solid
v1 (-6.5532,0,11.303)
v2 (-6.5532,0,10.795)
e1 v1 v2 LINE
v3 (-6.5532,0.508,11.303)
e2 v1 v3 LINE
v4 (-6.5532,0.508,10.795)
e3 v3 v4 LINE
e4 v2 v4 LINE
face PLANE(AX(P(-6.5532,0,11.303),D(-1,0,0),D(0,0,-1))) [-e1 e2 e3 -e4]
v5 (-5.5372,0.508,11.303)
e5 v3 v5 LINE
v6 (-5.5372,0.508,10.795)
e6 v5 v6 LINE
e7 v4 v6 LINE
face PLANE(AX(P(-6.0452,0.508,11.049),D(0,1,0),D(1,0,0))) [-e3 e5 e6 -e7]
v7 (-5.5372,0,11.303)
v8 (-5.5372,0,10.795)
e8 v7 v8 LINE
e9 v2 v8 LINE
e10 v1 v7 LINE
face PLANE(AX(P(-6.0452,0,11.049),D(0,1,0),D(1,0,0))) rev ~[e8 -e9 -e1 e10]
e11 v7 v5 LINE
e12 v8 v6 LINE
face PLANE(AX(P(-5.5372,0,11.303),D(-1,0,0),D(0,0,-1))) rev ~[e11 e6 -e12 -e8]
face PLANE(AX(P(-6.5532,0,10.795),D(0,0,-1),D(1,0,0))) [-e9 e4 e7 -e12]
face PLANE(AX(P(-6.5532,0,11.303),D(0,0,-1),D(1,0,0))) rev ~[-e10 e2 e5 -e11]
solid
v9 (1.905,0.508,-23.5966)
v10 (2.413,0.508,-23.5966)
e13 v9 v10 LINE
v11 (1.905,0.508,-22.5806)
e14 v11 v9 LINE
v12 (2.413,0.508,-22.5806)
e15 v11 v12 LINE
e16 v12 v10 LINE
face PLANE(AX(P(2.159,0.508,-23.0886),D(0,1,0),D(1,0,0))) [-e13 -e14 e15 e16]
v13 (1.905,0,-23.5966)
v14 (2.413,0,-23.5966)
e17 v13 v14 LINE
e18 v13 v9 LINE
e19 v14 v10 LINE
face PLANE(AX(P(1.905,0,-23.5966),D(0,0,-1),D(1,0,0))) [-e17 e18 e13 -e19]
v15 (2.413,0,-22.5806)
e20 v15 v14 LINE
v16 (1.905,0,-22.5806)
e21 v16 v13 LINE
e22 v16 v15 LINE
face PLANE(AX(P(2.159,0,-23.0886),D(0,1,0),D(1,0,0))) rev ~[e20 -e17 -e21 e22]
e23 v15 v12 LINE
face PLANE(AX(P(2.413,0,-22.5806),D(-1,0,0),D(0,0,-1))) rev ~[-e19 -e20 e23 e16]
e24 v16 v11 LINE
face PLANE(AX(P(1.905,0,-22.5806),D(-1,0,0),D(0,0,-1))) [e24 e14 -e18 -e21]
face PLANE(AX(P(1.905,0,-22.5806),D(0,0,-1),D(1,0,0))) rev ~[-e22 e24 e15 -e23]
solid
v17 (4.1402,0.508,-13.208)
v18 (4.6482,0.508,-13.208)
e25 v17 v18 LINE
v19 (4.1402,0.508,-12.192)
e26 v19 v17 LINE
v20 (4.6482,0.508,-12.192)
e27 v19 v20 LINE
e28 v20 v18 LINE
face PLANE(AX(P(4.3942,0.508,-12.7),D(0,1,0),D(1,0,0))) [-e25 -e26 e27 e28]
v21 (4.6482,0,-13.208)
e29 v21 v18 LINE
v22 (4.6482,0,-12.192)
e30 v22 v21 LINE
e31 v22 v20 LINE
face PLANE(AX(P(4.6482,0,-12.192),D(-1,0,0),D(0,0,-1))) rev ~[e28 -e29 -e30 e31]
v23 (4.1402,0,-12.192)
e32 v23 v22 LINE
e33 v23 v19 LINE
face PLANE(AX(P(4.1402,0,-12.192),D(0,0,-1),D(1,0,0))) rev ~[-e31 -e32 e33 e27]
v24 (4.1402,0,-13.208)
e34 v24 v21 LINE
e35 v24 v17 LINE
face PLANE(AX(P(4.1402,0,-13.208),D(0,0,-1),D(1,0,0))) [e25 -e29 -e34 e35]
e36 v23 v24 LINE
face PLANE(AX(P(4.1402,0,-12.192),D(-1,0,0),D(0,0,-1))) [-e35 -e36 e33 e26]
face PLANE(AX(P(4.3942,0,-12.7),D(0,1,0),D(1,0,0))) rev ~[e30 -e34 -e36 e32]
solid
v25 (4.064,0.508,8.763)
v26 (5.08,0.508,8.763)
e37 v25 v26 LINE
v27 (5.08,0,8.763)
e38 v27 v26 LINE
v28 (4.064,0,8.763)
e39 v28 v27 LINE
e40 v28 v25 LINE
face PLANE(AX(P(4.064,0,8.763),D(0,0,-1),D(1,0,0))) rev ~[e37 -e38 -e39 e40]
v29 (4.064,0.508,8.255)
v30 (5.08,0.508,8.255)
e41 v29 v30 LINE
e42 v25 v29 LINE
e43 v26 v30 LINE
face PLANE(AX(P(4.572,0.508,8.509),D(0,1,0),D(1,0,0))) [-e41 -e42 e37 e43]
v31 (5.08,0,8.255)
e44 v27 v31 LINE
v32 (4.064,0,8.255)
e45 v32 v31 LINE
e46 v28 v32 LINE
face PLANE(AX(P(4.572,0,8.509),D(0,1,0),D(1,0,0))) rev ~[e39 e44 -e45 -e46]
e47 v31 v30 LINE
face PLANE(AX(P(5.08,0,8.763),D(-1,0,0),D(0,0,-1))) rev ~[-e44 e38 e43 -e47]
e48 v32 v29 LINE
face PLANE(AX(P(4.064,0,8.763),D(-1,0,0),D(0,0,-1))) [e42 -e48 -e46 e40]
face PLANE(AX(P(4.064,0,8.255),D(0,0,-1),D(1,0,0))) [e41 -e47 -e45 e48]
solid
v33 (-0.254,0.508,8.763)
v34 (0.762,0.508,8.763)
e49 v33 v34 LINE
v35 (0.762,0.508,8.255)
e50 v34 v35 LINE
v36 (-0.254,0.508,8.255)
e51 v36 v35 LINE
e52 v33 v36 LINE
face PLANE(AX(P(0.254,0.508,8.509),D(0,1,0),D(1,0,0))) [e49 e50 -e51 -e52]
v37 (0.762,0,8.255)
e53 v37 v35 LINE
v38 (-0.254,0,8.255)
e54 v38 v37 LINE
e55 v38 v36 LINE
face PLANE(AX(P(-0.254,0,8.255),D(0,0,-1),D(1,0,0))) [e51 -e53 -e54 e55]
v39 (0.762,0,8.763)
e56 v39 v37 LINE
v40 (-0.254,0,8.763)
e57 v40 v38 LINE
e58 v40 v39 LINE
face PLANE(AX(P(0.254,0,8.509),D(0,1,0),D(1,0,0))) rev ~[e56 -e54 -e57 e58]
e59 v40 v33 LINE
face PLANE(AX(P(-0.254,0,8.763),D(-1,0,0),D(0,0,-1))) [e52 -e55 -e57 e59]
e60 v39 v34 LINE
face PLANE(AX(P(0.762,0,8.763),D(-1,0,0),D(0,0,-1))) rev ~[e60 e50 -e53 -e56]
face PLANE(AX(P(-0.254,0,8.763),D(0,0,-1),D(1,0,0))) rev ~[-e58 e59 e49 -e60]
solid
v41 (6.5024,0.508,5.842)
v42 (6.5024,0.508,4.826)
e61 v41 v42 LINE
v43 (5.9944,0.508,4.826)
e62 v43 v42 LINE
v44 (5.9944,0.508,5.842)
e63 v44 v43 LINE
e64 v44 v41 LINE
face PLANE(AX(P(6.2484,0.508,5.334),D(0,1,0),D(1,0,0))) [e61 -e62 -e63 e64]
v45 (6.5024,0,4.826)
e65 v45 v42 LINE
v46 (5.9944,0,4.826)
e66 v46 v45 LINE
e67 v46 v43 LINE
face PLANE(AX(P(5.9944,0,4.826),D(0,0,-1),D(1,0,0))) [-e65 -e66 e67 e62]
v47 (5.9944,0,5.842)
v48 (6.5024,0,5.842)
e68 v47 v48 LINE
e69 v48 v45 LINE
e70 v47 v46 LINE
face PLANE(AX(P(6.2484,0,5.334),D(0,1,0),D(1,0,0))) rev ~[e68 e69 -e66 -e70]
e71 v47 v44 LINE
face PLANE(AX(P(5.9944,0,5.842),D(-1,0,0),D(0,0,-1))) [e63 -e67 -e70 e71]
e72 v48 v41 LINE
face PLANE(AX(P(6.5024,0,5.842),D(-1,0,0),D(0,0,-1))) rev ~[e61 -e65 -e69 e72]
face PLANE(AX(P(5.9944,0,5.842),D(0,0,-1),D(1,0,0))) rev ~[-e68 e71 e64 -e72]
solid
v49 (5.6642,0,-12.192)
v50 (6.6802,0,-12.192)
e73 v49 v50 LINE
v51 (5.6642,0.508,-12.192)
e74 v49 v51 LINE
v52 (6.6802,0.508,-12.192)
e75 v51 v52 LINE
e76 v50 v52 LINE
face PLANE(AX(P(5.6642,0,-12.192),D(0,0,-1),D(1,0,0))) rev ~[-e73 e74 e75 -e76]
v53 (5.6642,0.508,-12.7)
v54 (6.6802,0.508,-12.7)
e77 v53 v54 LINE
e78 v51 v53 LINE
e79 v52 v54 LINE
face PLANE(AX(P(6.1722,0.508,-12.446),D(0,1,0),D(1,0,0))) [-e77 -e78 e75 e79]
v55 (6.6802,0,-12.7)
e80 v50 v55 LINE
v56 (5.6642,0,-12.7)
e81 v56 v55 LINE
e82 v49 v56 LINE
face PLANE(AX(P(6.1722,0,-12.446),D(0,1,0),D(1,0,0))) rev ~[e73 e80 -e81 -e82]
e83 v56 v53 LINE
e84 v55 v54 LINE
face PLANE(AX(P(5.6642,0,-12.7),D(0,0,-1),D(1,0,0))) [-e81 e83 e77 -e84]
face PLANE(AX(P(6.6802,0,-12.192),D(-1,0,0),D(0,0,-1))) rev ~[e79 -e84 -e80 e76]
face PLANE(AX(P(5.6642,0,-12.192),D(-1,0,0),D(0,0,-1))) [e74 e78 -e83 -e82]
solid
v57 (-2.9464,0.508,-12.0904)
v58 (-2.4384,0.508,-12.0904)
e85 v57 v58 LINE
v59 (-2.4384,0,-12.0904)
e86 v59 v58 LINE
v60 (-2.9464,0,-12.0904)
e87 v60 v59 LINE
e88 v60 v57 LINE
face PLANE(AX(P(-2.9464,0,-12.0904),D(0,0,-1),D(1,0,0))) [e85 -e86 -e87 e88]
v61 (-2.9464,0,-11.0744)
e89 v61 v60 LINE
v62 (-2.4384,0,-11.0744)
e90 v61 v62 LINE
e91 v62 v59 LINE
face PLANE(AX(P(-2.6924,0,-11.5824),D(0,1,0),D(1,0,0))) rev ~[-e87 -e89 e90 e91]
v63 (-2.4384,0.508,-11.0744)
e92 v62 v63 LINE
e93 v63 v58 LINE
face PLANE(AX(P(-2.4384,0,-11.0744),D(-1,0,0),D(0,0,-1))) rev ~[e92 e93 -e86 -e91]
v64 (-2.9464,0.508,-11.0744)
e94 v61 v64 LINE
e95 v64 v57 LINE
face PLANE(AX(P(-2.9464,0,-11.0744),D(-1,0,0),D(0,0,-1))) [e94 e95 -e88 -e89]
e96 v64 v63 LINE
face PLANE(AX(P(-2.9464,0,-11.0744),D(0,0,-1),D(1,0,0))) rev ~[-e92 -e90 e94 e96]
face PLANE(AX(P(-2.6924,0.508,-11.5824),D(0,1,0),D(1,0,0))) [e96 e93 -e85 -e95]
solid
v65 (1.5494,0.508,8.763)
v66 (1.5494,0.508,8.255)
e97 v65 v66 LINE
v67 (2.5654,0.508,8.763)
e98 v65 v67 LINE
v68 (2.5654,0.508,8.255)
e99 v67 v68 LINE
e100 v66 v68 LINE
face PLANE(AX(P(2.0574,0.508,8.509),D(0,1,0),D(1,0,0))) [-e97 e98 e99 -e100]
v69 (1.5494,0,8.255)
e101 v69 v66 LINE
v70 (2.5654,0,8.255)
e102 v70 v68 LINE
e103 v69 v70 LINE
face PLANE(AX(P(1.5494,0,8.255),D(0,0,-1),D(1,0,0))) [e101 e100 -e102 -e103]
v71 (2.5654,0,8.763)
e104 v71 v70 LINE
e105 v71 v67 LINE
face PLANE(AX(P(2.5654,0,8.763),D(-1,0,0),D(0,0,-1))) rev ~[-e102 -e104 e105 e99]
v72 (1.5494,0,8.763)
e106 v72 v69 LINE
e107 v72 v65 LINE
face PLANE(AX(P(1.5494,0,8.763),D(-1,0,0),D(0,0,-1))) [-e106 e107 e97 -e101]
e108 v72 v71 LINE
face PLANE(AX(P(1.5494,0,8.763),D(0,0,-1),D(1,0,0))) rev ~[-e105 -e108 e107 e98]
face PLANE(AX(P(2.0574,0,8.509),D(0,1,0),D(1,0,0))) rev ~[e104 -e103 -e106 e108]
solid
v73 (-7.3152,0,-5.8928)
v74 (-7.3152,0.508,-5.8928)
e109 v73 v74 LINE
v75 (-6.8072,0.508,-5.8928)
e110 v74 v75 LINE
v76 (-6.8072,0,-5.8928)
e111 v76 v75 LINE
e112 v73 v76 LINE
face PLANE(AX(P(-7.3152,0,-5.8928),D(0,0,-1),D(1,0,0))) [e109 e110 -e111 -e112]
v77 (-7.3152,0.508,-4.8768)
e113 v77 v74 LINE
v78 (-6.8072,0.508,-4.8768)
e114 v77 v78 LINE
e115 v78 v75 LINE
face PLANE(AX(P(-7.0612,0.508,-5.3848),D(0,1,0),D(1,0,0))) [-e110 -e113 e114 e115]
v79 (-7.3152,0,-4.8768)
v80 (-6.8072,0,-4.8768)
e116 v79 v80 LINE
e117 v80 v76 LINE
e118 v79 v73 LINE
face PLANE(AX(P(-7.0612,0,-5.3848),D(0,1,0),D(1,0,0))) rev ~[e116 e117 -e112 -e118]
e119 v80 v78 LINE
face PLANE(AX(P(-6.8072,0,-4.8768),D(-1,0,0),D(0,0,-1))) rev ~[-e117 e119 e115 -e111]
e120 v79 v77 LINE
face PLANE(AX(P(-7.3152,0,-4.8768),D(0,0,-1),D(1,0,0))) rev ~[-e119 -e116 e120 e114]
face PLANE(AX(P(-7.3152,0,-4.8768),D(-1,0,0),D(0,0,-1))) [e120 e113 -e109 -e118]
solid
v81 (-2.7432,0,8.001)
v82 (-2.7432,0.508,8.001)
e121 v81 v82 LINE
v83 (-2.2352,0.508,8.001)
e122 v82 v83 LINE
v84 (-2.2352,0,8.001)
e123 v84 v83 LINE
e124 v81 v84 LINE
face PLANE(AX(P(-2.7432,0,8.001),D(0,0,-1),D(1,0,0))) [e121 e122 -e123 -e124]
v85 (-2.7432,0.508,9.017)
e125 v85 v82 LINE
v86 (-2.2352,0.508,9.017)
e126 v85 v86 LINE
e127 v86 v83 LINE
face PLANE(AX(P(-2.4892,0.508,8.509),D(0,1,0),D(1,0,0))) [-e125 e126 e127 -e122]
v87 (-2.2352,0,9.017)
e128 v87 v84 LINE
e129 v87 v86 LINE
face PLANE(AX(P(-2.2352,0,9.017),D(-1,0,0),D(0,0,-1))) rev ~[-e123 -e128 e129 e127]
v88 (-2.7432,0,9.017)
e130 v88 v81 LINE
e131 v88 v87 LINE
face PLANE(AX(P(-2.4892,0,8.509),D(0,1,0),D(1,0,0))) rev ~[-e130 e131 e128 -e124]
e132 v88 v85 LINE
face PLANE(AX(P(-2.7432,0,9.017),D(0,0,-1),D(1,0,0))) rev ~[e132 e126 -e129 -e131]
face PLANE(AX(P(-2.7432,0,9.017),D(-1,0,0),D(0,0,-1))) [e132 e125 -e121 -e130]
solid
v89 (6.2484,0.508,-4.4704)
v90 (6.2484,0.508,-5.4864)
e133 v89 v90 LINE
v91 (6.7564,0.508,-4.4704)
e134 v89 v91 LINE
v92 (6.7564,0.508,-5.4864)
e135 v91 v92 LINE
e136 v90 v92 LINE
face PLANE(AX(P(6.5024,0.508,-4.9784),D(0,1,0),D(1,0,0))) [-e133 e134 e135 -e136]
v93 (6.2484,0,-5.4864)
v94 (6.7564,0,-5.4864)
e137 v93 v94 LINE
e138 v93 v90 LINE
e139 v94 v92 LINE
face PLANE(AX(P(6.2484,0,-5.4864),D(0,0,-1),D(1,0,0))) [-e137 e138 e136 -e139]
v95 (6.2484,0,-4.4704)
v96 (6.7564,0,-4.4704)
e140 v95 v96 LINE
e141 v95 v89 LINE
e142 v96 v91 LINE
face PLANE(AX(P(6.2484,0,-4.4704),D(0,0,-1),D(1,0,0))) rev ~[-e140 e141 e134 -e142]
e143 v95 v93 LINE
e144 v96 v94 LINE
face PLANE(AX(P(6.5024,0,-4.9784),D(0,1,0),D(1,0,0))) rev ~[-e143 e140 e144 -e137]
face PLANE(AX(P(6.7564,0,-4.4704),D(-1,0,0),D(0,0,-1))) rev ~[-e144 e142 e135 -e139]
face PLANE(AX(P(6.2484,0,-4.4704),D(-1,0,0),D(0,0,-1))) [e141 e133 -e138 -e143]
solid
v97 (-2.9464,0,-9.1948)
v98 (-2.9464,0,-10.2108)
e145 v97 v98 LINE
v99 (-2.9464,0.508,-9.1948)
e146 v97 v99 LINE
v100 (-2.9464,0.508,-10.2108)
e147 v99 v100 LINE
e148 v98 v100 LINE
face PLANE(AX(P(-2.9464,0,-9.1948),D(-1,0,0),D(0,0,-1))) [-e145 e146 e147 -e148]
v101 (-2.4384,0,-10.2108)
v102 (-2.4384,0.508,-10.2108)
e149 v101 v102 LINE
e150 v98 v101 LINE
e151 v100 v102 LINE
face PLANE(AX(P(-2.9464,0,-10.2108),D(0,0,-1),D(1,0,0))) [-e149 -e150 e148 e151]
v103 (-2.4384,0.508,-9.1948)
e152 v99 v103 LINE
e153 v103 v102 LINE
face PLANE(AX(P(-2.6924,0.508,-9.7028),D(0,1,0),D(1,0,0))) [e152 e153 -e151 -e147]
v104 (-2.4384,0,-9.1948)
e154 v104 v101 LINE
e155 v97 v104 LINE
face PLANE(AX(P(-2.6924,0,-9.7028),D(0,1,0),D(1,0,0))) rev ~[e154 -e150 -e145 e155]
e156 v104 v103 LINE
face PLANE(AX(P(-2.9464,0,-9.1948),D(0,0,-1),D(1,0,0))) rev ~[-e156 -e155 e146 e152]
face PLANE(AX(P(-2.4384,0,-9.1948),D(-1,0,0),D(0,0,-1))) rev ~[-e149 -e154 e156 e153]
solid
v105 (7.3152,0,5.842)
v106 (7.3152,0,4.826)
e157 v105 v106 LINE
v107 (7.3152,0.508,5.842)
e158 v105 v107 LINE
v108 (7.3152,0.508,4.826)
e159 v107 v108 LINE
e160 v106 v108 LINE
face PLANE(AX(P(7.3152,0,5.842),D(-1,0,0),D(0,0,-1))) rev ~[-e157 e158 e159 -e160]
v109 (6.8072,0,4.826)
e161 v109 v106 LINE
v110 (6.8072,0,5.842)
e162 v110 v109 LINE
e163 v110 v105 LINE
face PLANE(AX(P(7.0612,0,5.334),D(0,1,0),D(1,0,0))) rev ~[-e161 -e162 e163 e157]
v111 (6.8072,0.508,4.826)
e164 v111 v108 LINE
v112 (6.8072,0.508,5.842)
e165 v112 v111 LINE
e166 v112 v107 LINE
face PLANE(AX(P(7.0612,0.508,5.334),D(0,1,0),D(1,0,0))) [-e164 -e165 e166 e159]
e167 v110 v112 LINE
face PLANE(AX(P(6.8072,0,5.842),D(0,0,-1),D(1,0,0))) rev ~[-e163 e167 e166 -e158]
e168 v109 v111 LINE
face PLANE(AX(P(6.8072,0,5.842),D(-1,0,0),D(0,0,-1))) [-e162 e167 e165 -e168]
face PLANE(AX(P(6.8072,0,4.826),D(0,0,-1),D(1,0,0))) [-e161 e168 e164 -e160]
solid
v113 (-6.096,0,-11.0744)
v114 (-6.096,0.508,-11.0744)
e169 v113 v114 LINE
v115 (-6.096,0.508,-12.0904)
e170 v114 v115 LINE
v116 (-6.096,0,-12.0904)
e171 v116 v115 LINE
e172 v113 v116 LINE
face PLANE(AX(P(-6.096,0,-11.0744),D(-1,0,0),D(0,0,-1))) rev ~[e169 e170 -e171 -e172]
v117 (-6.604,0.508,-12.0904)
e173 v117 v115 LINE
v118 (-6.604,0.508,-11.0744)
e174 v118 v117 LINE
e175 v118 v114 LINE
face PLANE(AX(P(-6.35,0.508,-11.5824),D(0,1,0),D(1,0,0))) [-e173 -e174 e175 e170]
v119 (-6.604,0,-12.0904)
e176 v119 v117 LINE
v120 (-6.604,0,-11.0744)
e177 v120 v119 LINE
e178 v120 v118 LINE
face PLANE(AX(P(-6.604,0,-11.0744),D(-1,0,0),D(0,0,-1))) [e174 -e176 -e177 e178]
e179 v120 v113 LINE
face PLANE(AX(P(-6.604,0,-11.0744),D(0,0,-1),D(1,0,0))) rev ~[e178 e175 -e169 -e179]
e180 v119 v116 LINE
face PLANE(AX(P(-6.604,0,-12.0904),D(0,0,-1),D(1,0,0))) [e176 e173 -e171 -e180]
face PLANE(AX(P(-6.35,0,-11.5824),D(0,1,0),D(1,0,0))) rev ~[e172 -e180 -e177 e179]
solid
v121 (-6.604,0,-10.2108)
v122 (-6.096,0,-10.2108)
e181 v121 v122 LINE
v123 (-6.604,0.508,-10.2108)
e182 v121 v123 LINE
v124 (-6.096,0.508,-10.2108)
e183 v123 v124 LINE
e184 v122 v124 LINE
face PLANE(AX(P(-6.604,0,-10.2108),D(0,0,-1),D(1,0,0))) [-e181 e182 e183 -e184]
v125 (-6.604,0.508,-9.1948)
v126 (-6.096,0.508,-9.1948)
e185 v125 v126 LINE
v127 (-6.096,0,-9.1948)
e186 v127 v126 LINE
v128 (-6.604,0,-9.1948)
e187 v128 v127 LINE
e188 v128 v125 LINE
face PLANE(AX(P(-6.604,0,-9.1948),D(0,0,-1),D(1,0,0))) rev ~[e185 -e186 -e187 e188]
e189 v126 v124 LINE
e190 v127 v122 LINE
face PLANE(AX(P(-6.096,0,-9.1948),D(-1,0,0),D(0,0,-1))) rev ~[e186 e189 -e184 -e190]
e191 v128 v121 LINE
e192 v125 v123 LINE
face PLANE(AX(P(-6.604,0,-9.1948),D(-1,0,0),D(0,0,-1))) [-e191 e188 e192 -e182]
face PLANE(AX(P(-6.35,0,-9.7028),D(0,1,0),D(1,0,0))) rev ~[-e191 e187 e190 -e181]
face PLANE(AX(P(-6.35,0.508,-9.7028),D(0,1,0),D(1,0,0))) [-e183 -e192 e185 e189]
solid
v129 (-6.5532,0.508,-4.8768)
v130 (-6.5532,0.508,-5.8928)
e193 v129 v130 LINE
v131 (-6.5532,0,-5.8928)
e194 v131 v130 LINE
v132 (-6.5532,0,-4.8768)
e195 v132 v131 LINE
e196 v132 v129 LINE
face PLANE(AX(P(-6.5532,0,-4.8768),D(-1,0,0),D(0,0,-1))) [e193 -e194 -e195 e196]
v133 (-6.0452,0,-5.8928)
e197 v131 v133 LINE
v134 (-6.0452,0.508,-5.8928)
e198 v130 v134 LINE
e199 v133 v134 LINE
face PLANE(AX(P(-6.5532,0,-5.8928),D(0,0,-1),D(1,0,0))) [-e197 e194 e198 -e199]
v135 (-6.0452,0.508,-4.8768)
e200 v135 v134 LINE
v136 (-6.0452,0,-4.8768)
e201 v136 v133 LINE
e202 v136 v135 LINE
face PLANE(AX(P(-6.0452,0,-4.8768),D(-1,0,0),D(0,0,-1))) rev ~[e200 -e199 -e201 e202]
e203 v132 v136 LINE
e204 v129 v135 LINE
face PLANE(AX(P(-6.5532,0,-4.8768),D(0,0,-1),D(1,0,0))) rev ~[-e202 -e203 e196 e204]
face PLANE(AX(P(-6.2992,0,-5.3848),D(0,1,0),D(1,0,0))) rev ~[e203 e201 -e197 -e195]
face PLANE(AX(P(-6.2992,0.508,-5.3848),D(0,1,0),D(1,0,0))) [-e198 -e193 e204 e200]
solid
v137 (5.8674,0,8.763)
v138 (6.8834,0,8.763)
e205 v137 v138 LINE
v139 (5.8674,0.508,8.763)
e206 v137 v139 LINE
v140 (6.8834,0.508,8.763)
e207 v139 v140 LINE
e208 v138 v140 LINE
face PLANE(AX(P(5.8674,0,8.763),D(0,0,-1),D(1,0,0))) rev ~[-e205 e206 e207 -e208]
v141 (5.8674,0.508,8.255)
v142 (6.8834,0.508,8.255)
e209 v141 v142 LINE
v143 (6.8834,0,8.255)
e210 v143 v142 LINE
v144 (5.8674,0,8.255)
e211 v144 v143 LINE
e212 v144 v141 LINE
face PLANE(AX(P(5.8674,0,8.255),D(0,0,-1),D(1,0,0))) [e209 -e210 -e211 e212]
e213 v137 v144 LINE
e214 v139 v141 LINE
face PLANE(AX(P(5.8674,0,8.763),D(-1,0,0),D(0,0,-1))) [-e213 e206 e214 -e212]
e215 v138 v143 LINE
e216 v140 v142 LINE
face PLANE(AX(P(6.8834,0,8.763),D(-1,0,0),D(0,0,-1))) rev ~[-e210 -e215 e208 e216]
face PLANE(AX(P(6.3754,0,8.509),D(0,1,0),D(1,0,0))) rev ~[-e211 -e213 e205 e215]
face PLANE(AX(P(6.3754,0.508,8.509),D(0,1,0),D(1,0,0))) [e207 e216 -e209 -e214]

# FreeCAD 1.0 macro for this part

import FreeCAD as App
import Part
import Sketcher
Q = App.Units.Quantity

doc = App.newDocument("Part")
body = doc.addObject("PartDesign::Body", "Body")

# Sketch on XZ plane
sketch1 = doc.addObject("Sketcher::SketchObject", "Sketch")
body.addObject(sketch1)
sketch1.AttachmentSupport = (doc.XZ_Plane, [""])
sketch1.MapMode = "FlatFace"
sketch1.addGeometry(Part.LineSegment(App.Vector(5.9, 8.3, 0), App.Vector(5.9, 8.8, 0)), False)
sketch1.addGeometry(Part.LineSegment(App.Vector(5.9, 8.8, 0), App.Vector(6.9, 8.8, 0)), False)
sketch1.addGeometry(Part.LineSegment(App.Vector(6.9, 8.8, 0), App.Vector(6.9, 8.3, 0)), False)
sketch1.addGeometry(Part.LineSegment(App.Vector(6.9, 8.3, 0), App.Vector(5.9, 8.3, 0)), False)
sketch1.addConstraint(Sketcher.Constraint("Coincident", 0, 2, 1, 1))
sketch1.addConstraint(Sketcher.Constraint("Coincident", 1, 2, 2, 1))
sketch1.addConstraint(Sketcher.Constraint("Coincident", 2, 2, 3, 1))
sketch1.addConstraint(Sketcher.Constraint("Coincident", 3, 2, 0, 1))
sketch1.addConstraint(Sketcher.Constraint("Vertical", 0))
sketch1.addConstraint(Sketcher.Constraint("Horizontal", 1))
sketch1.addConstraint(Sketcher.Constraint("Vertical", 2))
sketch1.addConstraint(Sketcher.Constraint("Horizontal", 3))
sketch1.addConstraint(Sketcher.Constraint("DistanceX", 1, 1, 1, 2, Q("0.04 in")))
sketch1.addConstraint(Sketcher.Constraint("DistanceY", 0, 1, 0, 2, Q("0.02 in")))
sketch1.addConstraint(Sketcher.Constraint("DistanceX", -1, 1, 0, 2, Q("0.231 in")))
sketch1.addConstraint(Sketcher.Constraint("DistanceY", -1, 1, 0, 2, Q("0.345 in")))
pad1 = doc.addObject("PartDesign::Pad", "Pad")
body.addObject(pad1)
pad1.Profile = sketch1
pad1.Length = Q("0.02 in")
pad1.Reversed = True
body2 = doc.addObject("PartDesign::Body", "Body001")

# Sketch on XZ plane
sketch2 = doc.addObject("Sketcher::SketchObject", "Sketch001")
body2.addObject(sketch2)
sketch2.AttachmentSupport = (doc.getObject("XZ_Plane001"), [""])
sketch2.MapMode = "FlatFace"
sketch2.addGeometry(Part.LineSegment(App.Vector(4.1, 8.3, 0), App.Vector(4.1, 8.8, 0)), False)
sketch2.addGeometry(Part.LineSegment(App.Vector(4.1, 8.8, 0), App.Vector(5.1, 8.8, 0)), False)
sketch2.addGeometry(Part.LineSegment(App.Vector(5.1, 8.8, 0), App.Vector(5.1, 8.3, 0)), False)
sketch2.addGeometry(Part.LineSegment(App.Vector(5.1, 8.3, 0), App.Vector(4.1, 8.3, 0)), False)
sketch2.addConstraint(Sketcher.Constraint("Coincident", 0, 2, 1, 1))
sketch2.addConstraint(Sketcher.Constraint("Coincident", 1, 2, 2, 1))
sketch2.addConstraint(Sketcher.Constraint("Coincident", 2, 2, 3, 1))
sketch2.addConstraint(Sketcher.Constraint("Coincident", 3, 2, 0, 1))
sketch2.addConstraint(Sketcher.Constraint("Vertical", 0))
sketch2.addConstraint(Sketcher.Constraint("Horizontal", 1))
sketch2.addConstraint(Sketcher.Constraint("Vertical", 2))
sketch2.addConstraint(Sketcher.Constraint("Horizontal", 3))
sketch2.addConstraint(Sketcher.Constraint("DistanceX", 1, 1, 1, 2, Q("0.04 in")))
sketch2.addConstraint(Sketcher.Constraint("DistanceY", 0, 1, 0, 2, Q("0.02 in")))
sketch2.addConstraint(Sketcher.Constraint("DistanceX", -1, 1, 1, 2, Q("0.2 in")))
sketch2.addConstraint(Sketcher.Constraint("DistanceY", -1, 1, 0, 2, Q("0.345 in")))
pad2 = doc.addObject("PartDesign::Pad", "Pad001")
body2.addObject(pad2)
pad2.Profile = sketch2
pad2.Length = Q("0.02 in")
pad2.Reversed = True
body3 = doc.addObject("PartDesign::Body", "Body002")

# Sketch on XZ plane
sketch3 = doc.addObject("Sketcher::SketchObject", "Sketch002")
body3.addObject(sketch3)
sketch3.AttachmentSupport = (doc.getObject("XZ_Plane002"), [""])
sketch3.MapMode = "FlatFace"
sketch3.addGeometry(Part.LineSegment(App.Vector(1.5, 8.3, 0), App.Vector(1.5, 8.8, 0)), False)
sketch3.addGeometry(Part.LineSegment(App.Vector(1.5, 8.8, 0), App.Vector(2.6, 8.8, 0)), False)
sketch3.addGeometry(Part.LineSegment(App.Vector(2.6, 8.8, 0), App.Vector(2.6, 8.3, 0)), False)
sketch3.addGeometry(Part.LineSegment(App.Vector(2.6, 8.3, 0), App.Vector(1.5, 8.3, 0)), False)
sketch3.addConstraint(Sketcher.Constraint("Coincident", 0, 2, 1, 1))
sketch3.addConstraint(Sketcher.Constraint("Coincident", 1, 2, 2, 1))
sketch3.addConstraint(Sketcher.Constraint("Coincident", 2, 2, 3, 1))
sketch3.addConstraint(Sketcher.Constraint("Coincident", 3, 2, 0, 1))
sketch3.addConstraint(Sketcher.Constraint("Vertical", 0))
sketch3.addConstraint(Sketcher.Constraint("Horizontal", 1))
sketch3.addConstraint(Sketcher.Constraint("Vertical", 2))
sketch3.addConstraint(Sketcher.Constraint("Horizontal", 3))
sketch3.addConstraint(Sketcher.Constraint("DistanceX", 1, 1, 1, 2, Q("0.04 in")))
sketch3.addConstraint(Sketcher.Constraint("DistanceY", 0, 1, 0, 2, Q("0.02 in")))
sketch3.addConstraint(Sketcher.Constraint("DistanceX", -1, 1, 0, 2, Q("0.061 in")))
sketch3.addConstraint(Sketcher.Constraint("DistanceY", -1, 1, 0, 2, Q("0.345 in")))
pad3 = doc.addObject("PartDesign::Pad", "Pad002")
body3.addObject(pad3)
pad3.Profile = sketch3
pad3.Length = Q("0.02 in")
pad3.Reversed = True
body4 = doc.addObject("PartDesign::Body", "Body003")

# Sketch on XZ plane
sketch4 = doc.addObject("Sketcher::SketchObject", "Sketch003")
body4.addObject(sketch4)
sketch4.AttachmentSupport = (doc.getObject("XZ_Plane003"), [""])
sketch4.MapMode = "FlatFace"
sketch4.addGeometry(Part.LineSegment(App.Vector(-0.3, 8.3, 0), App.Vector(-0.3, 8.8, 0)), False)
sketch4.addGeometry(Part.LineSegment(App.Vector(-0.3, 8.8, 0), App.Vector(0.8, 8.8, 0)), False)
sketch4.addGeometry(Part.LineSegment(App.Vector(0.8, 8.8, 0), App.Vector(0.8, 8.3, 0)), False)
sketch4.addGeometry(Part.LineSegment(App.Vector(0.8, 8.3, 0), App.Vector(-0.3, 8.3, 0)), False)
sketch4.addConstraint(Sketcher.Constraint("Coincident", 0, 2, 1, 1))
sketch4.addConstraint(Sketcher.Constraint("Coincident", 1, 2, 2, 1))
sketch4.addConstraint(Sketcher.Constraint("Coincident", 2, 2, 3, 1))
sketch4.addConstraint(Sketcher.Constraint("Coincident", 3, 2, 0, 1))
sketch4.addConstraint(Sketcher.Constraint("Vertical", 0))
sketch4.addConstraint(Sketcher.Constraint("Horizontal", 1))
sketch4.addConstraint(Sketcher.Constraint("Vertical", 2))
sketch4.addConstraint(Sketcher.Constraint("Horizontal", 3))
sketch4.addConstraint(Sketcher.Constraint("DistanceX", 1, 1, 1, 2, Q("0.04 in")))
sketch4.addConstraint(Sketcher.Constraint("DistanceY", 0, 1, 0, 2, Q("0.02 in")))
sketch4.addConstraint(Sketcher.Constraint("DistanceX", 0, 2, -1, 1, Q("0.01 in")))
sketch4.addConstraint(Sketcher.Constraint("DistanceY", -1, 1, 0, 2, Q("0.345 in")))
pad4 = doc.addObject("PartDesign::Pad", "Pad003")
body4.addObject(pad4)
pad4.Profile = sketch4
pad4.Length = Q("0.02 in")
pad4.Reversed = True
body5 = doc.addObject("PartDesign::Body", "Body004")

# Sketch on XZ plane
sketch5 = doc.addObject("Sketcher::SketchObject", "Sketch004")
body5.addObject(sketch5)
sketch5.AttachmentSupport = (doc.getObject("XZ_Plane004"), [""])
sketch5.MapMode = "FlatFace"
sketch5.addGeometry(Part.LineSegment(App.Vector(-2.7, 8, 0), App.Vector(-2.7, 9, 0)), False)
sketch5.addGeometry(Part.LineSegment(App.Vector(-2.7, 9, 0), App.Vector(-2.2, 9, 0)), False)
sketch5.addGeometry(Part.LineSegment(App.Vector(-2.2, 9, 0), App.Vector(-2.2, 8, 0)), False)
sketch5.addGeometry(Part.LineSegment(App.Vector(-2.2, 8, 0), App.Vector(-2.7, 8, 0)), False)
sketch5.addConstraint(Sketcher.Constraint("Coincident", 0, 2, 1, 1))
sketch5.addConstraint(Sketcher.Constraint("Coincident", 1, 2, 2, 1))
sketch5.addConstraint(Sketcher.Constraint("Coincident", 2, 2, 3, 1))
sketch5.addConstraint(Sketcher.Constraint("Coincident", 3, 2, 0, 1))
sketch5.addConstraint(Sketcher.Constraint("Vertical", 0))
sketch5.addConstraint(Sketcher.Constraint("Horizontal", 1))
sketch5.addConstraint(Sketcher.Constraint("Vertical", 2))
sketch5.addConstraint(Sketcher.Constraint("Horizontal", 3))
sketch5.addConstraint(Sketcher.Constraint("DistanceX", 1, 1, 1, 2, Q("0.02 in")))
sketch5.addConstraint(Sketcher.Constraint("DistanceY", 0, 1, 0, 2, Q("0.04 in")))
sketch5.addConstraint(Sketcher.Constraint("DistanceX", 0, 2, -1, 1, Q("0.108 in")))
sketch5.addConstraint(Sketcher.Constraint("DistanceY", -1, 1, 0, 2, Q("0.355 in")))
pad5 = doc.addObject("PartDesign::Pad", "Pad004")
body5.addObject(pad5)
pad5.Profile = sketch5
pad5.Length = Q("0.02 in")
pad5.Reversed = True
body6 = doc.addObject("PartDesign::Body", "Body005")

# Sketch on XZ plane
sketch6 = doc.addObject("Sketcher::SketchObject", "Sketch005")
body6.addObject(sketch6)
sketch6.AttachmentSupport = (doc.getObject("XZ_Plane005"), [""])
sketch6.MapMode = "FlatFace"
sketch6.addGeometry(Part.LineSegment(App.Vector(-6.6, 10.8, 0), App.Vector(-6.6, 11.3, 0)), False)
sketch6.addGeometry(Part.LineSegment(App.Vector(-6.6, 11.3, 0), App.Vector(-5.5, 11.3, 0)), False)
sketch6.addGeometry(Part.LineSegment(App.Vector(-5.5, 11.3, 0), App.Vector(-5.5, 10.8, 0)), False)
sketch6.addGeometry(Part.LineSegment(App.Vector(-5.5, 10.8, 0), App.Vector(-6.6, 10.8, 0)), False)
sketch6.addConstraint(Sketcher.Constraint("Coincident", 0, 2, 1, 1))
sketch6.addConstraint(Sketcher.Constraint("Coincident", 1, 2, 2, 1))
sketch6.addConstraint(Sketcher.Constraint("Coincident", 2, 2, 3, 1))
sketch6.addConstraint(Sketcher.Constraint("Coincident", 3, 2, 0, 1))
sketch6.addConstraint(Sketcher.Constraint("Vertical", 0))
sketch6.addConstraint(Sketcher.Constraint("Horizontal", 1))
sketch6.addConstraint(Sketcher.Constraint("Vertical", 2))
sketch6.addConstraint(Sketcher.Constraint("Horizontal", 3))
sketch6.addConstraint(Sketcher.Constraint("DistanceX", 1, 1, 1, 2, Q("0.04 in")))
sketch6.addConstraint(Sketcher.Constraint("DistanceY", 0, 1, 0, 2, Q("0.02 in")))
sketch6.addConstraint(Sketcher.Constraint("DistanceX", 0, 2, -1, 1, Q("0.258 in")))
sketch6.addConstraint(Sketcher.Constraint("DistanceY", -1, 1, 0, 2, Q("0.445 in")))
pad6 = doc.addObject("PartDesign::Pad", "Pad005")
body6.addObject(pad6)
pad6.Profile = sketch6
pad6.Length = Q("0.02 in")
pad6.Reversed = True
body7 = doc.addObject("PartDesign::Body", "Body006")

# Sketch on XZ plane
sketch7 = doc.addObject("Sketcher::SketchObject", "Sketch006")
body7.addObject(sketch7)
sketch7.AttachmentSupport = (doc.getObject("XZ_Plane006"), [""])
sketch7.MapMode = "FlatFace"
sketch7.addGeometry(Part.LineSegment(App.Vector(6, 4.8, 0), App.Vector(6, 5.8, 0)), False)
sketch7.addGeometry(Part.LineSegment(App.Vector(6, 5.8, 0), App.Vector(6.5, 5.8, 0)), False)
sketch7.addGeometry(Part.LineSegment(App.Vector(6.5, 5.8, 0), App.Vector(6.5, 4.8, 0)), False)
sketch7.addGeometry(Part.LineSegment(App.Vector(6.5, 4.8, 0), App.Vector(6, 4.8, 0)), False)
sketch7.addConstraint(Sketcher.Constraint("Coincident", 0, 2, 1, 1))
sketch7.addConstraint(Sketcher.Constraint("Coincident", 1, 2, 2, 1))
sketch7.addConstraint(Sketcher.Constraint("Coincident", 2, 2, 3, 1))
sketch7.addConstraint(Sketcher.Constraint("Coincident", 3, 2, 0, 1))
sketch7.addConstraint(Sketcher.Constraint("Vertical", 0))
sketch7.addConstraint(Sketcher.Constraint("Horizontal", 1))
sketch7.addConstraint(Sketcher.Constraint("Vertical", 2))
sketch7.addConstraint(Sketcher.Constraint("Horizontal", 3))
sketch7.addConstraint(Sketcher.Constraint("DistanceX", 1, 1, 1, 2, Q("0.02 in")))
sketch7.addConstraint(Sketcher.Constraint("DistanceY", 0, 1, 0, 2, Q("0.04 in")))
sketch7.addConstraint(Sketcher.Constraint("DistanceY", -1, 1, 0, 2, Q("0.23 in")))
sketch7.addConstraint(Sketcher.Constraint("DistanceX", -1, 1, 0, 2, Q("0.236 in")))
pad7 = doc.addObject("PartDesign::Pad", "Pad006")
body7.addObject(pad7)
pad7.Profile = sketch7
pad7.Length = Q("0.02 in")
pad7.Reversed = True
body8 = doc.addObject("PartDesign::Body", "Body007")

# Sketch on XZ plane
sketch8 = doc.addObject("Sketcher::SketchObject", "Sketch007")
body8.addObject(sketch8)
sketch8.AttachmentSupport = (doc.getObject("XZ_Plane007"), [""])
sketch8.MapMode = "FlatFace"
sketch8.addGeometry(Part.LineSegment(App.Vector(6.8, 4.8, 0), App.Vector(6.8, 5.8, 0)), False)
sketch8.addGeometry(Part.LineSegment(App.Vector(6.8, 5.8, 0), App.Vector(7.3, 5.8, 0)), False)
sketch8.addGeometry(Part.LineSegment(App.Vector(7.3, 5.8, 0), App.Vector(7.3, 4.8, 0)), False)
sketch8.addGeometry(Part.LineSegment(App.Vector(7.3, 4.8, 0), App.Vector(6.8, 4.8, 0)), False)
sketch8.addConstraint(Sketcher.Constraint("Coincident", 0, 2, 1, 1))
sketch8.addConstraint(Sketcher.Constraint("Coincident", 1, 2, 2, 1))
sketch8.addConstraint(Sketcher.Constraint("Coincident", 2, 2, 3, 1))
sketch8.addConstraint(Sketcher.Constraint("Coincident", 3, 2, 0, 1))
sketch8.addConstraint(Sketcher.Constraint("Vertical", 0))
sketch8.addConstraint(Sketcher.Constraint("Horizontal", 1))
sketch8.addConstraint(Sketcher.Constraint("Vertical", 2))
sketch8.addConstraint(Sketcher.Constraint("Horizontal", 3))
sketch8.addConstraint(Sketcher.Constraint("DistanceX", 1, 1, 1, 2, Q("0.02 in")))
sketch8.addConstraint(Sketcher.Constraint("DistanceY", 0, 1, 0, 2, Q("0.04 in")))
sketch8.addConstraint(Sketcher.Constraint("DistanceY", -1, 1, 0, 2, Q("0.23 in")))
sketch8.addConstraint(Sketcher.Constraint("DistanceX", -1, 1, 0, 2, Q("0.268 in")))
pad8 = doc.addObject("PartDesign::Pad", "Pad007")
body8.addObject(pad8)
pad8.Profile = sketch8
pad8.Length = Q("0.02 in")
pad8.Reversed = True
body9 = doc.addObject("PartDesign::Body", "Body008")

# Sketch on XZ plane
sketch9 = doc.addObject("Sketcher::SketchObject", "Sketch008")
body9.addObject(sketch9)
sketch9.AttachmentSupport = (doc.getObject("XZ_Plane008"), [""])
sketch9.MapMode = "FlatFace"
sketch9.addGeometry(Part.LineSegment(App.Vector(6.2, -5.5, 0), App.Vector(6.2, -4.5, 0)), False)
sketch9.addGeometry(Part.LineSegment(App.Vector(6.2, -4.5, 0), App.Vector(6.8, -4.5, 0)), False)
sketch9.addGeometry(Part.LineSegment(App.Vector(6.8, -4.5, 0), App.Vector(6.8, -5.5, 0)), False)
sketch9.addGeometry(Part.LineSegment(App.Vector(6.8, -5.5, 0), App.Vector(6.2, -5.5, 0)), False)
sketch9.addConstraint(Sketcher.Constraint("Coincident", 0, 2, 1, 1))
sketch9.addConstraint(Sketcher.Constraint("Coincident", 1, 2, 2, 1))
sketch9.addConstraint(Sketcher.Constraint("Coincident", 2, 2, 3, 1))
sketch9.addConstraint(Sketcher.Constraint("Coincident", 3, 2, 0, 1))
sketch9.addConstraint(Sketcher.Constraint("Vertical", 0))
sketch9.addConstraint(Sketcher.Constraint("Horizontal", 1))
sketch9.addConstraint(Sketcher.Constraint("Vertical", 2))
sketch9.addConstraint(Sketcher.Constraint("Horizontal", 3))
sketch9.addConstraint(Sketcher.Constraint("DistanceX", 1, 1, 1, 2, Q("0.02 in")))
sketch9.addConstraint(Sketcher.Constraint("DistanceY", 0, 1, 0, 2, Q("0.04 in")))
sketch9.addConstraint(Sketcher.Constraint("DistanceX", -1, 1, 0, 2, Q("0.246 in")))
sketch9.addConstraint(Sketcher.Constraint("DistanceY", 0, 2, -1, 1, Q("0.176 in")))
pad9 = doc.addObject("PartDesign::Pad", "Pad008")
body9.addObject(pad9)
pad9.Profile = sketch9
pad9.Length = Q("0.02 in")
pad9.Reversed = True
body10 = doc.addObject("PartDesign::Body", "Body009")

# Sketch on XZ plane
sketch10 = doc.addObject("Sketcher::SketchObject", "Sketch009")
body10.addObject(sketch10)
sketch10.AttachmentSupport = (doc.getObject("XZ_Plane009"), [""])
sketch10.MapMode = "FlatFace"
sketch10.addGeometry(Part.LineSegment(App.Vector(-6.6, -5.9, 0), App.Vector(-6.6, -4.9, 0)), False)
sketch10.addGeometry(Part.LineSegment(App.Vector(-6.6, -4.9, 0), App.Vector(-6, -4.9, 0)), False)
sketch10.addGeometry(Part.LineSegment(App.Vector(-6, -4.9, 0), App.Vector(-6, -5.9, 0)), False)
sketch10.addGeometry(Part.LineSegment(App.Vector(-6, -5.9, 0), App.Vector(-6.6, -5.9, 0)), False)
sketch10.addConstraint(Sketcher.Constraint("Coincident", 0, 2, 1, 1))
sketch10.addConstraint(Sketcher.Constraint("Coincident", 1, 2, 2, 1))
sketch10.addConstraint(Sketcher.Constraint("Coincident", 2, 2, 3, 1))
sketch10.addConstraint(Sketcher.Constraint("Coincident", 3, 2, 0, 1))
sketch10.addConstraint(Sketcher.Constraint("Vertical", 0))
sketch10.addConstraint(Sketcher.Constraint("Horizontal", 1))
sketch10.addConstraint(Sketcher.Constraint("Vertical", 2))
sketch10.addConstraint(Sketcher.Constraint("Horizontal", 3))
sketch10.addConstraint(Sketcher.Constraint("DistanceX", 1, 1, 1, 2, Q("0.02 in")))
sketch10.addConstraint(Sketcher.Constraint("DistanceY", 0, 1, 0, 2, Q("0.04 in")))
sketch10.addConstraint(Sketcher.Constraint("DistanceX", 0, 2, -1, 1, Q("0.258 in")))
sketch10.addConstraint(Sketcher.Constraint("DistanceY", 0, 2, -1, 1, Q("0.192 in")))
pad10 = doc.addObject("PartDesign::Pad", "Pad009")
body10.addObject(pad10)
pad10.Profile = sketch10
pad10.Length = Q("0.02 in")
pad10.Reversed = True
body11 = doc.addObject("PartDesign::Body", "Body010")

# Sketch on XZ plane
sketch11 = doc.addObject("Sketcher::SketchObject", "Sketch010")
body11.addObject(sketch11)
sketch11.AttachmentSupport = (doc.getObject("XZ_Plane010"), [""])
sketch11.MapMode = "FlatFace"
sketch11.addGeometry(Part.LineSegment(App.Vector(-7.3, -5.9, 0), App.Vector(-7.3, -4.9, 0)), False)
sketch11.addGeometry(Part.LineSegment(App.Vector(-7.3, -4.9, 0), App.Vector(-6.8, -4.9, 0)), False)
sketch11.addGeometry(Part.LineSegment(App.Vector(-6.8, -4.9, 0), App.Vector(-6.8, -5.9, 0)), False)
sketch11.addGeometry(Part.LineSegment(App.Vector(-6.8, -5.9, 0), App.Vector(-7.3, -5.9, 0)), False)
sketch11.addConstraint(Sketcher.Constraint("Coincident", 0, 2, 1, 1))
sketch11.addConstraint(Sketcher.Constraint("Coincident", 1, 2, 2, 1))
sketch11.addConstraint(Sketcher.Constraint("Coincident", 2, 2, 3, 1))
sketch11.addConstraint(Sketcher.Constraint("Coincident", 3, 2, 0, 1))
sketch11.addConstraint(Sketcher.Constraint("Vertical", 0))
sketch11.addConstraint(Sketcher.Constraint("Horizontal", 1))
sketch11.addConstraint(Sketcher.Constraint("Vertical", 2))
sketch11.addConstraint(Sketcher.Constraint("Horizontal", 3))
sketch11.addConstraint(Sketcher.Constraint("DistanceX", 1, 1, 1, 2, Q("0.02 in")))
sketch11.addConstraint(Sketcher.Constraint("DistanceY", 0, 1, 0, 2, Q("0.04 in")))
sketch11.addConstraint(Sketcher.Constraint("DistanceX", 0, 2, -1, 1, Q("0.288 in")))
sketch11.addConstraint(Sketcher.Constraint("DistanceY", 0, 2, -1, 1, Q("0.192 in")))
pad11 = doc.addObject("PartDesign::Pad", "Pad010")
body11.addObject(pad11)
pad11.Profile = sketch11
pad11.Length = Q("0.02 in")
pad11.Reversed = True
body12 = doc.addObject("PartDesign::Body", "Body011")

# Sketch on XZ plane
sketch12 = doc.addObject("Sketcher::SketchObject", "Sketch011")
body12.addObject(sketch12)
sketch12.AttachmentSupport = (doc.getObject("XZ_Plane011"), [""])
sketch12.MapMode = "FlatFace"
sketch12.addGeometry(Part.LineSegment(App.Vector(-6.6, -10.2, 0), App.Vector(-6.6, -9.2, 0)), False)
sketch12.addGeometry(Part.LineSegment(App.Vector(-6.6, -9.2, 0), App.Vector(-6.1, -9.2, 0)), False)
sketch12.addGeometry(Part.LineSegment(App.Vector(-6.1, -9.2, 0), App.Vector(-6.1, -10.2, 0)), False)
sketch12.addGeometry(Part.LineSegment(App.Vector(-6.1, -10.2, 0), App.Vector(-6.6, -10.2, 0)), False)
sketch12.addConstraint(Sketcher.Constraint("Coincident", 0, 2, 1, 1))
sketch12.addConstraint(Sketcher.Constraint("Coincident", 1, 2, 2, 1))
sketch12.addConstraint(Sketcher.Constraint("Coincident", 2, 2, 3, 1))
sketch12.addConstraint(Sketcher.Constraint("Coincident", 3, 2, 0, 1))
sketch12.addConstraint(Sketcher.Constraint("Vertical", 0))
sketch12.addConstraint(Sketcher.Constraint("Horizontal", 1))
sketch12.addConstraint(Sketcher.Constraint("Vertical", 2))
sketch12.addConstraint(Sketcher.Constraint("Horizontal", 3))
sketch12.addConstraint(Sketcher.Constraint("DistanceX", 1, 1, 1, 2, Q("0.02 in")))
sketch12.addConstraint(Sketcher.Constraint("DistanceY", 0, 1, 0, 2, Q("0.04 in")))
sketch12.addConstraint(Sketcher.Constraint("DistanceX", 0, 2, -1, 1, Q("0.26 in")))
sketch12.addConstraint(Sketcher.Constraint("DistanceY", 0, 2, -1, 1, Q("0.362 in")))
pad12 = doc.addObject("PartDesign::Pad", "Pad011")
body12.addObject(pad12)
pad12.Profile = sketch12
pad12.Length = Q("0.02 in")
pad12.Reversed = True
body13 = doc.addObject("PartDesign::Body", "Body012")

# Sketch on XZ plane
sketch13 = doc.addObject("Sketcher::SketchObject", "Sketch012")
body13.addObject(sketch13)
sketch13.AttachmentSupport = (doc.getObject("XZ_Plane012"), [""])
sketch13.MapMode = "FlatFace"
sketch13.addGeometry(Part.LineSegment(App.Vector(-6.6, -12.1, 0), App.Vector(-6.6, -11.1, 0)), False)
sketch13.addGeometry(Part.LineSegment(App.Vector(-6.6, -11.1, 0), App.Vector(-6.1, -11.1, 0)), False)
sketch13.addGeometry(Part.LineSegment(App.Vector(-6.1, -11.1, 0), App.Vector(-6.1, -12.1, 0)), False)
sketch13.addGeometry(Part.LineSegment(App.Vector(-6.1, -12.1, 0), App.Vector(-6.6, -12.1, 0)), False)
sketch13.addConstraint(Sketcher.Constraint("Coincident", 0, 2, 1, 1))
sketch13.addConstraint(Sketcher.Constraint("Coincident", 1, 2, 2, 1))
sketch13.addConstraint(Sketcher.Constraint("Coincident", 2, 2, 3, 1))
sketch13.addConstraint(Sketcher.Constraint("Coincident", 3, 2, 0, 1))
sketch13.addConstraint(Sketcher.Constraint("Vertical", 0))
sketch13.addConstraint(Sketcher.Constraint("Horizontal", 1))
sketch13.addConstraint(Sketcher.Constraint("Vertical", 2))
sketch13.addConstraint(Sketcher.Constraint("Horizontal", 3))
sketch13.addConstraint(Sketcher.Constraint("DistanceX", 1, 1, 1, 2, Q("0.02 in")))
sketch13.addConstraint(Sketcher.Constraint("DistanceY", 0, 1, 0, 2, Q("0.04 in")))
sketch13.addConstraint(Sketcher.Constraint("DistanceX", 0, 2, -1, 1, Q("0.26 in")))
sketch13.addConstraint(Sketcher.Constraint("DistanceY", 0, 2, -1, 1, Q("0.436 in")))
pad13 = doc.addObject("PartDesign::Pad", "Pad012")
body13.addObject(pad13)
pad13.Profile = sketch13
pad13.Length = Q("0.02 in")
pad13.Reversed = True
body14 = doc.addObject("PartDesign::Body", "Body013")

# Sketch on XZ plane
sketch14 = doc.addObject("Sketcher::SketchObject", "Sketch013")
body14.addObject(sketch14)
sketch14.AttachmentSupport = (doc.getObject("XZ_Plane013"), [""])
sketch14.MapMode = "FlatFace"
sketch14.addGeometry(Part.LineSegment(App.Vector(-2.9, -12.1, 0), App.Vector(-2.9, -11.1, 0)), False)
sketch14.addGeometry(Part.LineSegment(App.Vector(-2.9, -11.1, 0), App.Vector(-2.4, -11.1, 0)), False)
sketch14.addGeometry(Part.LineSegment(App.Vector(-2.4, -11.1, 0), App.Vector(-2.4, -12.1, 0)), False)
sketch14.addGeometry(Part.LineSegment(App.Vector(-2.4, -12.1, 0), App.Vector(-2.9, -12.1, 0)), False)
sketch14.addConstraint(Sketcher.Constraint("Coincident", 0, 2, 1, 1))
sketch14.addConstraint(Sketcher.Constraint("Coincident", 1, 2, 2, 1))
sketch14.addConstraint(Sketcher.Constraint("Coincident", 2, 2, 3, 1))
sketch14.addConstraint(Sketcher.Constraint("Coincident", 3, 2, 0, 1))
sketch14.addConstraint(Sketcher.Constraint("Vertical", 0))
sketch14.addConstraint(Sketcher.Constraint("Horizontal", 1))
sketch14.addConstraint(Sketcher.Constraint("Vertical", 2))
sketch14.addConstraint(Sketcher.Constraint("Horizontal", 3))
sketch14.addConstraint(Sketcher.Constraint("DistanceX", 1, 1, 1, 2, Q("0.02 in")))
sketch14.addConstraint(Sketcher.Constraint("DistanceY", 0, 1, 0, 2, Q("0.04 in")))
sketch14.addConstraint(Sketcher.Constraint("DistanceX", 0, 2, -1, 1, Q("0.116 in")))
sketch14.addConstraint(Sketcher.Constraint("DistanceY", 0, 2, -1, 1, Q("0.436 in")))
pad14 = doc.addObject("PartDesign::Pad", "Pad013")
body14.addObject(pad14)
pad14.Profile = sketch14
pad14.Length = Q("0.02 in")
pad14.Reversed = True
body15 = doc.addObject("PartDesign::Body", "Body014")

# Sketch on XZ plane
sketch15 = doc.addObject("Sketcher::SketchObject", "Sketch014")
body15.addObject(sketch15)
sketch15.AttachmentSupport = (doc.getObject("XZ_Plane014"), [""])
sketch15.MapMode = "FlatFace"
sketch15.addGeometry(Part.LineSegment(App.Vector(-2.9, -10.2, 0), App.Vector(-2.9, -9.2, 0)), False)
sketch15.addGeometry(Part.LineSegment(App.Vector(-2.9, -9.2, 0), App.Vector(-2.4, -9.2, 0)), False)
sketch15.addGeometry(Part.LineSegment(App.Vector(-2.4, -9.2, 0), App.Vector(-2.4, -10.2, 0)), False)
sketch15.addGeometry(Part.LineSegment(App.Vector(-2.4, -10.2, 0), App.Vector(-2.9, -10.2, 0)), False)
sketch15.addConstraint(Sketcher.Constraint("Coincident", 0, 2, 1, 1))
sketch15.addConstraint(Sketcher.Constraint("Coincident", 1, 2, 2, 1))
sketch15.addConstraint(Sketcher.Constraint("Coincident", 2, 2, 3, 1))
sketch15.addConstraint(Sketcher.Constraint("Coincident", 3, 2, 0, 1))
sketch15.addConstraint(Sketcher.Constraint("Vertical", 0))
sketch15.addConstraint(Sketcher.Constraint("Horizontal", 1))
sketch15.addConstraint(Sketcher.Constraint("Vertical", 2))
sketch15.addConstraint(Sketcher.Constraint("Horizontal", 3))
sketch15.addConstraint(Sketcher.Constraint("DistanceX", 1, 1, 1, 2, Q("0.02 in")))
sketch15.addConstraint(Sketcher.Constraint("DistanceY", 0, 1, 0, 2, Q("0.04 in")))
sketch15.addConstraint(Sketcher.Constraint("DistanceX", 0, 2, -1, 1, Q("0.116 in")))
sketch15.addConstraint(Sketcher.Constraint("DistanceY", 0, 2, -1, 1, Q("0.362 in")))
pad15 = doc.addObject("PartDesign::Pad", "Pad014")
body15.addObject(pad15)
pad15.Profile = sketch15
pad15.Length = Q("0.02 in")
pad15.Reversed = True
body16 = doc.addObject("PartDesign::Body", "Body015")

# Sketch on XZ plane
sketch16 = doc.addObject("Sketcher::SketchObject", "Sketch015")
body16.addObject(sketch16)
sketch16.AttachmentSupport = (doc.getObject("XZ_Plane015"), [""])
sketch16.MapMode = "FlatFace"
sketch16.addGeometry(Part.LineSegment(App.Vector(5.7, -12.7, 0), App.Vector(5.7, -12.2, 0)), False)
sketch16.addGeometry(Part.LineSegment(App.Vector(5.7, -12.2, 0), App.Vector(6.7, -12.2, 0)), False)
sketch16.addGeometry(Part.LineSegment(App.Vector(6.7, -12.2, 0), App.Vector(6.7, -12.7, 0)), False)
sketch16.addGeometry(Part.LineSegment(App.Vector(6.7, -12.7, 0), App.Vector(5.7, -12.7, 0)), False)
sketch16.addConstraint(Sketcher.Constraint("Coincident", 0, 2, 1, 1))
sketch16.addConstraint(Sketcher.Constraint("Coincident", 1, 2, 2, 1))
sketch16.addConstraint(Sketcher.Constraint("Coincident", 2, 2, 3, 1))
sketch16.addConstraint(Sketcher.Constraint("Coincident", 3, 2, 0, 1))
sketch16.addConstraint(Sketcher.Constraint("Vertical", 0))
sketch16.addConstraint(Sketcher.Constraint("Horizontal", 1))
sketch16.addConstraint(Sketcher.Constraint("Vertical", 2))
sketch16.addConstraint(Sketcher.Constraint("Horizontal", 3))
sketch16.addConstraint(Sketcher.Constraint("DistanceX", 1, 1, 1, 2, Q("0.04 in")))
sketch16.addConstraint(Sketcher.Constraint("DistanceY", 0, 1, 0, 2, Q("0.02 in")))
sketch16.addConstraint(Sketcher.Constraint("DistanceY", 2, 2, -1, 1, Q("0.5 in")))
sketch16.addConstraint(Sketcher.Constraint("DistanceX", -1, 1, 0, 2, Q("0.223 in")))
pad16 = doc.addObject("PartDesign::Pad", "Pad015")
body16.addObject(pad16)
pad16.Profile = sketch16
pad16.Length = Q("0.02 in")
pad16.Reversed = True
body17 = doc.addObject("PartDesign::Body", "Body016")

# Sketch on XZ plane
sketch17 = doc.addObject("Sketcher::SketchObject", "Sketch016")
body17.addObject(sketch17)
sketch17.AttachmentSupport = (doc.getObject("XZ_Plane016"), [""])
sketch17.MapMode = "FlatFace"
sketch17.addGeometry(Part.LineSegment(App.Vector(4.1, -13.2, 0), App.Vector(4.1, -12.2, 0)), False)
sketch17.addGeometry(Part.LineSegment(App.Vector(4.1, -12.2, 0), App.Vector(4.6, -12.2, 0)), False)
sketch17.addGeometry(Part.LineSegment(App.Vector(4.6, -12.2, 0), App.Vector(4.6, -13.2, 0)), False)
sketch17.addGeometry(Part.LineSegment(App.Vector(4.6, -13.2, 0), App.Vector(4.1, -13.2, 0)), False)
sketch17.addConstraint(Sketcher.Constraint("Coincident", 0, 2, 1, 1))
sketch17.addConstraint(Sketcher.Constraint("Coincident", 1, 2, 2, 1))
sketch17.addConstraint(Sketcher.Constraint("Coincident", 2, 2, 3, 1))
sketch17.addConstraint(Sketcher.Constraint("Coincident", 3, 2, 0, 1))
sketch17.addConstraint(Sketcher.Constraint("Vertical", 0))
sketch17.addConstraint(Sketcher.Constraint("Horizontal", 1))
sketch17.addConstraint(Sketcher.Constraint("Vertical", 2))
sketch17.addConstraint(Sketcher.Constraint("Horizontal", 3))
sketch17.addConstraint(Sketcher.Constraint("DistanceX", 1, 1, 1, 2, Q("0.02 in")))
sketch17.addConstraint(Sketcher.Constraint("DistanceY", 0, 1, 0, 2, Q("0.04 in")))
sketch17.addConstraint(Sketcher.Constraint("DistanceY", 0, 2, -1, 1, Q("0.48 in")))
sketch17.addConstraint(Sketcher.Constraint("DistanceX", -1, 1, 0, 2, Q("0.163 in")))
pad17 = doc.addObject("PartDesign::Pad", "Pad016")
body17.addObject(pad17)
pad17.Profile = sketch17
pad17.Length = Q("0.02 in")
pad17.Reversed = True
body18 = doc.addObject("PartDesign::Body", "Body017")

# Sketch on XZ plane
sketch18 = doc.addObject("Sketcher::SketchObject", "Sketch017")
body18.addObject(sketch18)
sketch18.AttachmentSupport = (doc.getObject("XZ_Plane017"), [""])
sketch18.MapMode = "FlatFace"
sketch18.addGeometry(Part.LineSegment(App.Vector(1.9, -23.6, 0), App.Vector(1.9, -22.6, 0)), False)
sketch18.addGeometry(Part.LineSegment(App.Vector(1.9, -22.6, 0), App.Vector(2.4, -22.6, 0)), False)
sketch18.addGeometry(Part.LineSegment(App.Vector(2.4, -22.6, 0), App.Vector(2.4, -23.6, 0)), False)
sketch18.addGeometry(Part.LineSegment(App.Vector(2.4, -23.6, 0), App.Vector(1.9, -23.6, 0)), False)
sketch18.addConstraint(Sketcher.Constraint("Coincident", 0, 2, 1, 1))
sketch18.addConstraint(Sketcher.Constraint("Coincident", 1, 2, 2, 1))
sketch18.addConstraint(Sketcher.Constraint("Coincident", 2, 2, 3, 1))
sketch18.addConstraint(Sketcher.Constraint("Coincident", 3, 2, 0, 1))
sketch18.addConstraint(Sketcher.Constraint("Vertical", 0))
sketch18.addConstraint(Sketcher.Constraint("Horizontal", 1))
sketch18.addConstraint(Sketcher.Constraint("Vertical", 2))
sketch18.addConstraint(Sketcher.Constraint("Horizontal", 3))
sketch18.addConstraint(Sketcher.Constraint("DistanceX", 1, 1, 1, 2, Q("0.02 in")))
sketch18.addConstraint(Sketcher.Constraint("DistanceY", 0, 1, 0, 2, Q("0.04 in")))
sketch18.addConstraint(Sketcher.Constraint("DistanceX", -1, 1, 0, 2, Q("0.075 in")))
sketch18.addConstraint(Sketcher.Constraint("DistanceY", 0, 2, -1, 1, Q("0.889 in")))
pad18 = doc.addObject("PartDesign::Pad", "Pad017")
body18.addObject(pad18)
pad18.Profile = sketch18
pad18.Length = Q("0.02 in")
pad18.Reversed = True

doc.recompute()
